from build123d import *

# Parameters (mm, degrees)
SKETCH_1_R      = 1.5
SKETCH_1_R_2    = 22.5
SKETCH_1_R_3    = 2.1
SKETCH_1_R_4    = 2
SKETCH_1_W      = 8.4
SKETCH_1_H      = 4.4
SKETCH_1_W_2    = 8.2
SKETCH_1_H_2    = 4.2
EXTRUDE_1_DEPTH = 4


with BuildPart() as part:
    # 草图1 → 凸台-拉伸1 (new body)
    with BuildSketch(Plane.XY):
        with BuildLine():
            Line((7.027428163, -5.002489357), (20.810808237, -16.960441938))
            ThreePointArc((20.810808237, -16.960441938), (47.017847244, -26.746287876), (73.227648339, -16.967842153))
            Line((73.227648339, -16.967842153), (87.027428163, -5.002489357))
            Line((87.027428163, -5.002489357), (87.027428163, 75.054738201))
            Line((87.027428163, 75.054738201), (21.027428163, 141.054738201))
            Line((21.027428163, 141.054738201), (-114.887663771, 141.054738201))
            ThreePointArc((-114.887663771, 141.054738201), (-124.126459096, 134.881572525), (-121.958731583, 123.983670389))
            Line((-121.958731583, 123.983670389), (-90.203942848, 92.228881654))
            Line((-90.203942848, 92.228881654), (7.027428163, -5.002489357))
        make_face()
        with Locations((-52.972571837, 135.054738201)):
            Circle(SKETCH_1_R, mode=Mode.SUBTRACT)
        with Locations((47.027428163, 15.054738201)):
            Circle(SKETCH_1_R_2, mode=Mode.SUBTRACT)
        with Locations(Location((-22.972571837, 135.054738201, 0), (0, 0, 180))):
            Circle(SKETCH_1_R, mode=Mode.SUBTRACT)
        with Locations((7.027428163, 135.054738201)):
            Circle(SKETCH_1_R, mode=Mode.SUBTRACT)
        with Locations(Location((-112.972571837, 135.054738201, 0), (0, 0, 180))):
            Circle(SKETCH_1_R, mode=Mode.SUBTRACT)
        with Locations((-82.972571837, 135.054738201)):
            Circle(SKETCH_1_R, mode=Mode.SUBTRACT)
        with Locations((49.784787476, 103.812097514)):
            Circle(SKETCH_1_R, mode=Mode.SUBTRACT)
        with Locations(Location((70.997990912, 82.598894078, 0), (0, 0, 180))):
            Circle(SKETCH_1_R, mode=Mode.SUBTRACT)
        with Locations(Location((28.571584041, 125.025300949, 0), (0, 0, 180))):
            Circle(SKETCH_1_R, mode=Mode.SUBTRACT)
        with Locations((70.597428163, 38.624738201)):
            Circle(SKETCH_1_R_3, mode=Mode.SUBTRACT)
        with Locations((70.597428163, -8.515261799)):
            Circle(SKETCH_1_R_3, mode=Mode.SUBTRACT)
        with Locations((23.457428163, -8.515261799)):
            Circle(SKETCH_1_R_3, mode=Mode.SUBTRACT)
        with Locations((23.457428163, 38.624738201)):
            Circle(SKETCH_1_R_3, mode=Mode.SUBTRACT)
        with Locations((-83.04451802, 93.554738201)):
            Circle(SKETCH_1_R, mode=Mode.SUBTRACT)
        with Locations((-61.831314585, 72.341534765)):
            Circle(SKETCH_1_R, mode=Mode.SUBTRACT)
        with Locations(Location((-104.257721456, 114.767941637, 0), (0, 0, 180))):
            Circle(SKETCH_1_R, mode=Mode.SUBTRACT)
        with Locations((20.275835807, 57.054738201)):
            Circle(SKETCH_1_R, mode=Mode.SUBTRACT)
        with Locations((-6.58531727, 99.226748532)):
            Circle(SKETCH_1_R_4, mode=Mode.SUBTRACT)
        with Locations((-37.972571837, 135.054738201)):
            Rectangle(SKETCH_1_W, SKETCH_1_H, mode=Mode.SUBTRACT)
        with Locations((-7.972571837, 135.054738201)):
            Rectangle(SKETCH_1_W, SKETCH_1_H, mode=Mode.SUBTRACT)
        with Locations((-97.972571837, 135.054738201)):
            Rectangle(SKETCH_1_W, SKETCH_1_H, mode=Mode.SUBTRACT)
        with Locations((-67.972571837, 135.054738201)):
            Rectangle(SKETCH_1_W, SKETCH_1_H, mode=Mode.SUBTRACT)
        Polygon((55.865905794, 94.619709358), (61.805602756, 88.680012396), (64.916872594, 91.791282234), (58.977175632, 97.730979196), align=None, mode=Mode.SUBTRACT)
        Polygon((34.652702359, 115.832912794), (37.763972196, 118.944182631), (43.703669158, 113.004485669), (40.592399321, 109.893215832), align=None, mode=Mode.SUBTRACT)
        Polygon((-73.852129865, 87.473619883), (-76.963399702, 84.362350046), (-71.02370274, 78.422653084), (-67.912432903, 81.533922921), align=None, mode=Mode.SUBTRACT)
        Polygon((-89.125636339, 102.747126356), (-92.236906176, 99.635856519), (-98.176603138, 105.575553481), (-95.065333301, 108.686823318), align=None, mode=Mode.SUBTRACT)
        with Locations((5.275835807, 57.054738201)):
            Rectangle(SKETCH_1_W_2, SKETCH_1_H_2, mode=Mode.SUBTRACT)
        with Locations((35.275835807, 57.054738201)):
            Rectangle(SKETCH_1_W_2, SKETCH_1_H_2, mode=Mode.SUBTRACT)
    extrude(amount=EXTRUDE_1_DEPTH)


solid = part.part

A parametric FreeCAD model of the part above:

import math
import FreeCAD as App
import Part
import Sketcher

V = App.Vector
Q = App.Units.Quantity


def add_polygon(sketch, points):
    """Adds a closed chain of lines whose ends are joined by coincident constraints."""
    first, n = sketch.GeometryCount, len(points)
    for a, b in zip(points, points[1:] + points[:1]):
        sketch.addGeometry(Part.LineSegment(App.Vector(*a, 0), App.Vector(*b, 0)), False)
    for i in range(n):
        sketch.addConstraint(Sketcher.Constraint("Coincident", first + i, 2, first + (i + 1) % n, 1))

doc = App.newDocument("Part")
body = doc.addObject("PartDesign::Body", "Body")

sketch1 = body.newObject("Sketcher::SketchObject", "Sketch")
sketch1.AttachmentSupport = (doc.getObject("XY_Plane"), [""])
sketch1.MapMode = "FlatFace"
sketch1.addGeometry(Part.LineSegment(V(7, -5, 0), V(20.8, -17, 0)), False)
sketch1.addGeometry(Part.ArcOfCircle(Part.Circle(V(47, 13.3, 0), V(0, 0, 1), 40), math.radians(-131), math.radians(-49)), False)
sketch1.addGeometry(Part.LineSegment(V(73.2, -17, 0), V(87, -5, 0)), False)
sketch1.addGeometry(Part.LineSegment(V(87, -5, 0), V(87, 75.1, 0)), False)
sketch1.addGeometry(Part.LineSegment(V(87, 75.1, 0), V(21, 141.1, 0)), False)
sketch1.addGeometry(Part.LineSegment(V(21, 141.1, 0), V(-114.9, 141.1, 0)), False)
sketch1.addGeometry(Part.ArcOfCircle(Part.Circle(V(-114.9, 131.1, 0), V(0, 0, 1), 10), math.radians(90), math.radians(225)), False)
sketch1.addGeometry(Part.LineSegment(V(-122, 124, 0), V(7, -5, 0)), False)
sketch1.addGeometry(Part.Circle(V(23.5, -8.5, 0), V(0, 0, 1), 2.1), False)
sketch1.addGeometry(Part.Circle(V(70.6, -8.5, 0), V(0, 0, 1), 2.1), False)
sketch1.addGeometry(Part.Circle(V(47, 15.1, 0), V(0, 0, 1), 22.5), False)
sketch1.addGeometry(Part.Circle(V(23.5, 38.6, 0), V(0, 0, 1), 2.1), False)
add_polygon(sketch1, [(9.4, 55), (1.2, 55), (1.2, 59.2), (9.4, 59.2)])
sketch1.addGeometry(Part.Circle(V(20.3, 57.1, 0), V(0, 0, 1), 1.5), False)
sketch1.addGeometry(Part.Circle(V(70.6, 38.6, 0), V(0, 0, 1), 2.1), False)
add_polygon(sketch1, [(39.4, 55), (31.2, 55), (31.2, 59.2), (39.4, 59.2)])
add_polygon(sketch1, [(-77, 84.4), (-73.9, 87.5), (-67.9, 81.5), (-71, 78.4)])
sketch1.addGeometry(Part.Circle(V(-83, 93.6, 0), V(0, 0, 1), 1.5), False)
sketch1.addGeometry(Part.Circle(V(-61.8, 72.3, 0), V(0, 0, 1), 1.5), False)
add_polygon(sketch1, [(-95.1, 108.7), (-89.1, 102.7), (-92.2, 99.6), (-98.2, 105.6)])
sketch1.addGeometry(Part.Circle(V(-104.3, 114.8, 0), V(0, 0, 1), 1.5), False)
sketch1.addGeometry(Part.Circle(V(-113, 135.1, 0), V(0, 0, 1), 1.5), False)
add_polygon(sketch1, [(-93.8, 132.9), (-102.2, 132.9), (-102.2, 137.3), (-93.8, 137.3)])
sketch1.addGeometry(Part.Circle(V(-83, 135.1, 0), V(0, 0, 1), 1.5), False)
add_polygon(sketch1, [(-63.8, 132.9), (-72.2, 132.9), (-72.2, 137.3), (-63.8, 137.3)])
sketch1.addGeometry(Part.Circle(V(-53, 135.1, 0), V(0, 0, 1), 1.5), False)
add_polygon(sketch1, [(-33.8, 132.9), (-42.2, 132.9), (-42.2, 137.3), (-33.8, 137.3)])
sketch1.addGeometry(Part.Circle(V(-23, 135.1, 0), V(0, 0, 1), 1.5), False)
sketch1.addGeometry(Part.Circle(V(-6.6, 99.2, 0), V(0, 0, 1), 2), False)
sketch1.addGeometry(Part.Circle(V(71, 82.6, 0), V(0, 0, 1), 1.5), False)
add_polygon(sketch1, [(61.8, 88.7), (55.9, 94.6), (59, 97.7), (64.9, 91.8)])
add_polygon(sketch1, [(-3.8, 132.9), (-12.2, 132.9), (-12.2, 137.3), (-3.8, 137.3)])
sketch1.addGeometry(Part.Circle(V(7, 135.1, 0), V(0, 0, 1), 1.5), False)
add_polygon(sketch1, [(40.6, 109.9), (34.7, 115.8), (37.8, 118.9), (43.7, 113)])
sketch1.addGeometry(Part.Circle(V(49.8, 103.8, 0), V(0, 0, 1), 1.5), False)
sketch1.addGeometry(Part.Circle(V(28.6, 125, 0), V(0, 0, 1), 1.5), False)
sketch1.addConstraint([
    Sketcher.Constraint("Tangent", 0, 2, 1, 1),
    Sketcher.Constraint("Tangent", 1, 2, 2, 1),
    Sketcher.Constraint("Coincident", 2, 2, 3, 1),
    Sketcher.Constraint("Coincident", 3, 2, 4, 1),
    Sketcher.Constraint("Coincident", 4, 2, 5, 1),
    Sketcher.Constraint("Tangent", 5, 2, 6, 1),
    Sketcher.Constraint("Tangent", 6, 2, 7, 1),
    Sketcher.Constraint("Coincident", 7, 2, 0, 1),
    Sketcher.Constraint("Vertical", 3),
    Sketcher.Constraint("Horizontal", 5),
    Sketcher.Constraint("Horizontal", 12),
    Sketcher.Constraint("Vertical", 13),
    Sketcher.Constraint("Horizontal", 14),
    Sketcher.Constraint("Vertical", 15),
    Sketcher.Constraint("Horizontal", 18),
    Sketcher.Constraint("Vertical", 19),
    Sketcher.Constraint("Horizontal", 20),
    Sketcher.Constraint("Vertical", 21),
    Sketcher.Constraint("Horizontal", 34),
    Sketcher.Constraint("Vertical", 35),
    Sketcher.Constraint("Horizontal", 36),
    Sketcher.Constraint("Vertical", 37),
    Sketcher.Constraint("Horizontal", 39),
    Sketcher.Constraint("Vertical", 40),
    Sketcher.Constraint("Horizontal", 41),
    Sketcher.Constraint("Vertical", 42),
    Sketcher.Constraint("Horizontal", 44),
    Sketcher.Constraint("Vertical", 45),
    Sketcher.Constraint("Horizontal", 46),
    Sketcher.Constraint("Vertical", 47),
    Sketcher.Constraint("Horizontal", 55),
    Sketcher.Constraint("Vertical", 56),
    Sketcher.Constraint("Horizontal", 57),
    Sketcher.Constraint("Vertical", 58),
    Sketcher.Constraint("Equal", 8, 9),
    Sketcher.Constraint("Equal", 9, 11),
    Sketcher.Constraint("Equal", 11, 17),
    Sketcher.Constraint("Equal", 16, 26),
    Sketcher.Constraint("Equal", 26, 27),
    Sketcher.Constraint("Equal", 27, 32),
    Sketcher.Constraint("Equal", 32, 33),
    Sketcher.Constraint("Equal", 33, 38),
    Sketcher.Constraint("Equal", 38, 43),
    Sketcher.Constraint("Equal", 43, 48),
    Sketcher.Constraint("Equal", 48, 50),
    Sketcher.Constraint("Equal", 50, 59),
    Sketcher.Constraint("Equal", 59, 64),
    Sketcher.Constraint("Equal", 64, 65),
    Sketcher.Constraint("Parallel", 4, 7),
    Sketcher.Constraint("Perpendicular", 7, 22),
    Sketcher.Constraint("Perpendicular", 22, 23),
    Sketcher.Constraint("Perpendicular", 23, 24),
    Sketcher.Constraint("Perpendicular", 24, 25),
    Sketcher.Constraint("Parallel", 25, 28),
    Sketcher.Constraint("Perpendicular", 28, 29),
    Sketcher.Constraint("Perpendicular", 29, 30),
    Sketcher.Constraint("Perpendicular", 30, 31),
    Sketcher.Constraint("Perpendicular", 31, 51),
    Sketcher.Constraint("Perpendicular", 51, 52),
    Sketcher.Constraint("Perpendicular", 52, 53),
    Sketcher.Constraint("Perpendicular", 53, 54),
    Sketcher.Constraint("Perpendicular", 54, 60),
    Sketcher.Constraint("Perpendicular", 60, 61),
    Sketcher.Constraint("Perpendicular", 61, 62),
    Sketcher.Constraint("Perpendicular", 62, 63),
    Sketcher.Constraint("Horizontal", 8, 3, 9, 3),
    Sketcher.Constraint("Horizontal", 11, 3, 17, 3),
    Sketcher.Constraint("Horizontal", 33, 3, 38, 3),
    Sketcher.Constraint("Horizontal", 38, 3, 43, 3),
    Sketcher.Constraint("Horizontal", 43, 3, 48, 3),
    Sketcher.Constraint("Horizontal", 48, 3, 59, 3),
    Sketcher.Constraint("Horizontal", 2, 2, 7, 2),
    Sketcher.Constraint("Horizontal", 15, 2, 18, 2),
    Sketcher.Constraint("Horizontal", 14, 2, 19, 2),
    Sketcher.Constraint("Horizontal", 37, 2, 39, 2),
    Sketcher.Constraint("Horizontal", 36, 2, 40, 2),
    Sketcher.Constraint("Horizontal", 42, 2, 44, 2),
    Sketcher.Constraint("Horizontal", 41, 2, 45, 2),
    Sketcher.Constraint("Horizontal", 47, 2, 55, 2),
    Sketcher.Constraint("Horizontal", 46, 2, 56, 2),
    Sketcher.Constraint("Vertical", 8, 3, 11, 3),
    Sketcher.Constraint("Vertical", 9, 3, 17, 3),
    Sketcher.Constraint("Vertical", 59, 3, 7, 2),
    Sketcher.Constraint("Equal", 14, 18),
    Sketcher.Constraint("Equal", 36, 39),
    Sketcher.Constraint("Equal", 41, 44),
    Sketcher.Constraint("Equal", 46, 55),
    Sketcher.Constraint("Equal", 25, 28),
    Sketcher.Constraint("Equal", 24, 29),
    Sketcher.Constraint("Equal", 30, 51),
    Sketcher.Constraint("Equal", 31, 52),
    Sketcher.Constraint("Equal", 53, 60),
    Sketcher.Constraint("Equal", 54, 61),
    Sketcher.Constraint("Diameter", 10, Q("45 mm")),
    Sketcher.Constraint("Diameter", 16, Q("3 mm")),
    Sketcher.Constraint("Diameter", 49, Q("4 mm")),
    Sketcher.Constraint("Radius", 1, Q("40 mm")),
    Sketcher.Constraint("Radius", 6, Q("10 mm")),
    Sketcher.Constraint("Diameter", 8, Q("4.2 mm")),
    Sketcher.Constraint("Angle", 4, Q("135 deg")),
    Sketcher.Constraint("DistanceX", 12, 2, 12, 1, Q("8.2 mm")),
    Sketcher.Constraint("DistanceX", 34, 2, 34, 1, Q("8.4 mm")),
    Sketcher.Constraint("DistanceY", 13, 1, 13, 2, Q("4.2 mm")),
    Sketcher.Constraint("DistanceY", 35, 1, 35, 2, Q("4.4 mm")),
    Sketcher.Constraint("Distance", 22, Q("4.4 mm")),
    Sketcher.Constraint("Distance", 23, Q("8.4 mm")),
    Sketcher.Constraint("DistanceX", 5, 2, 5, 1, Q("135.915092 mm")),
    Sketcher.Constraint("DistanceY", -1, 1, 65, 3, Q("125.025301 mm")),
    Sketcher.Constraint("DistanceX", 25, 2, -1, 1, Q("76.9634 mm")),
    Sketcher.Constraint("DistanceX", -1, 1, 63, 2, Q("40.592399 mm")),
    Sketcher.Constraint("Distance", 0, Q("18.247581 mm")),
    Sketcher.Constraint("Distance", 2, Q("18.264818 mm")),
    Sketcher.Constraint("DistanceY", 3, 1, 3, 2, Q("80.057228 mm")),
    Sketcher.Constraint("DistanceY", -1, 1, 1, 3, Q("13.253712 mm")),
    Sketcher.Constraint("DistanceY", -1, 1, 6, 3, Q("131.054738 mm")),
    Sketcher.Constraint("DistanceX", -1, 1, 8, 3, Q("23.457428 mm")),
    Sketcher.Constraint("DistanceY", 8, 3, -1, 1, Q("8.515262 mm")),
    Sketcher.Constraint("DistanceX", -1, 1, 9, 3, Q("70.597428 mm")),
    Sketcher.Constraint("DistanceX", -1, 1, 10, 3, Q("47.027428 mm")),
    Sketcher.Constraint("DistanceY", -1, 1, 10, 3, Q("15.054738 mm")),
    Sketcher.Constraint("DistanceY", -1, 1, 11, 3, Q("38.624738 mm")),
    Sketcher.Constraint("DistanceY", -1, 1, 16, 3, Q("57.054738 mm")),
    Sketcher.Constraint("DistanceX", 26, 3, -1, 1, Q("83.044518 mm")),
    Sketcher.Constraint("DistanceY", -1, 1, 26, 3, Q("93.554738 mm")),
    Sketcher.Constraint("DistanceX", 32, 3, -1, 1, Q("104.257721 mm")),
    Sketcher.Constraint("DistanceY", -1, 1, 32, 3, Q("114.767942 mm")),
    Sketcher.Constraint("DistanceX", 33, 3, -1, 1, Q("112.972572 mm")),
    Sketcher.Constraint("DistanceY", -1, 1, 33, 3, Q("135.054738 mm")),
    Sketcher.Constraint("DistanceX", 38, 3, -1, 1, Q("82.972572 mm")),
    Sketcher.Constraint("DistanceX", 43, 3, -1, 1, Q("52.972572 mm")),
    Sketcher.Constraint("DistanceX", 48, 3, -1, 1, Q("22.972572 mm")),
    Sketcher.Constraint("DistanceY", -1, 1, 49, 3, Q("99.226749 mm")),
    Sketcher.Constraint("DistanceX", -1, 1, 50, 3, Q("70.997991 mm")),
    Sketcher.Constraint("DistanceX", -1, 1, 59, 3, Q("7.027428 mm")),
    Sketcher.Constraint("DistanceY", -1, 1, 12, 2, Q("54.954738 mm")),
    Sketcher.Constraint("DistanceY", -1, 1, 22, 2, Q("87.47362 mm")),
    Sketcher.Constraint("DistanceX", 34, 2, -1, 1, Q("102.172572 mm")),
    Sketcher.Constraint("DistanceY", -1, 1, 34, 2, Q("132.854738 mm")),
    Sketcher.Constraint("DistanceX", 39, 2, -1, 1, Q("72.172572 mm")),
    Sketcher.Constraint("DistanceX", 44, 2, -1, 1, Q("42.172572 mm")),
    Sketcher.Constraint("DistanceY", -1, 1, 51, 2, Q("94.619709 mm")),
    Sketcher.Constraint("DistanceX", 55, 2, -1, 1, Q("12.172572 mm")),
    Sketcher.Constraint("DistanceX", -1, 1, 16, 3, Q("20.275836 mm")),
    Sketcher.Constraint("DistanceX", 27, 3, -1, 1, Q("61.831315 mm")),
    Sketcher.Constraint("DistanceY", -1, 1, 27, 3, Q("72.341535 mm")),
    Sketcher.Constraint("DistanceX", 49, 3, -1, 1, Q("6.585317 mm")),
    Sketcher.Constraint("DistanceY", -1, 1, 50, 3, Q("82.598894 mm")),
    Sketcher.Constraint("DistanceX", -1, 1, 64, 3, Q("49.784787 mm")),
    Sketcher.Constraint("DistanceY", -1, 1, 64, 3, Q("103.812098 mm")),
    Sketcher.Constraint("DistanceX", -1, 1, 65, 3, Q("28.571584 mm")),
    Sketcher.Constraint("DistanceX", -1, 1, 12, 2, Q("1.175836 mm")),
    Sketcher.Constraint("DistanceX", -1, 1, 18, 2, Q("31.175836 mm")),
    Sketcher.Constraint("DistanceX", 28, 2, -1, 1, Q("89.125636 mm")),
    Sketcher.Constraint("DistanceY", -1, 1, 28, 2, Q("102.747126 mm")),
    Sketcher.Constraint("DistanceX", -1, 1, 51, 2, Q("55.865906 mm")),
    Sketcher.Constraint("DistanceY", -1, 1, 60, 2, Q("115.832913 mm")),
])
pad1 = body.newObject("PartDesign::Pad", "Pad")
pad1.Profile = sketch1
pad1.Length = 4

doc.recompute()
